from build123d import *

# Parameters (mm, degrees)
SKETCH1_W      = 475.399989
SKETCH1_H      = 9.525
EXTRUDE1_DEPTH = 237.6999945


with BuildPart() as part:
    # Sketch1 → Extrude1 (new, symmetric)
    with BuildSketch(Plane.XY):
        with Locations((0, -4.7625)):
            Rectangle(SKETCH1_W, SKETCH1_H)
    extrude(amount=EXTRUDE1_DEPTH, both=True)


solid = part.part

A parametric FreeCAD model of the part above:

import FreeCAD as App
import Part
import Sketcher
Q = App.Units.Quantity

doc = App.newDocument("Part")
body = doc.addObject("PartDesign::Body", "Body")

sketch1 = body.newObject("Sketcher::SketchObject", "Sketch")
sketch1.AttachmentSupport = (doc.getObject("XY_Plane"), [""])
sketch1.MapMode = "FlatFace"
sketch1.addGeometry(Part.LineSegment(App.Vector(-238, 0, 0), App.Vector(-238, -10, 0)), False)
sketch1.addGeometry(Part.LineSegment(App.Vector(-238, -10, 0), App.Vector(238, -10, 0)), False)
sketch1.addGeometry(Part.LineSegment(App.Vector(238, -10, 0), App.Vector(238, 0, 0)), False)
sketch1.addGeometry(Part.LineSegment(App.Vector(238, 0, 0), App.Vector(-238, 0, 0)), False)
sketch1.addConstraint(Sketcher.Constraint("Coincident", 0, 2, 1, 1))
sketch1.addConstraint(Sketcher.Constraint("Coincident", 1, 2, 2, 1))
sketch1.addConstraint(Sketcher.Constraint("Coincident", 2, 2, 3, 1))
sketch1.addConstraint(Sketcher.Constraint("Coincident", 3, 2, 0, 1))
sketch1.addConstraint(Sketcher.Constraint("Vertical", 0))
sketch1.addConstraint(Sketcher.Constraint("Horizontal", 1))
sketch1.addConstraint(Sketcher.Constraint("Vertical", 2))
sketch1.addConstraint(Sketcher.Constraint("Horizontal", 3))
sketch1.addConstraint(Sketcher.Constraint("Symmetric", 2, 2, 3, 2, -1, 1))
sketch1.addConstraint(Sketcher.Constraint("DistanceY", 0, 2, 0, 1, Q("0.375 in")))
sketch1.addConstraint(Sketcher.Constraint("DistanceX", 1, 1, 1, 2, Q("475.399989 mm")))
pad1 = body.newObject("PartDesign::Pad", "Pad")
pad1.Profile = sketch1
pad1.Length = 475.399989
pad1.Midplane = True

doc.recompute()
